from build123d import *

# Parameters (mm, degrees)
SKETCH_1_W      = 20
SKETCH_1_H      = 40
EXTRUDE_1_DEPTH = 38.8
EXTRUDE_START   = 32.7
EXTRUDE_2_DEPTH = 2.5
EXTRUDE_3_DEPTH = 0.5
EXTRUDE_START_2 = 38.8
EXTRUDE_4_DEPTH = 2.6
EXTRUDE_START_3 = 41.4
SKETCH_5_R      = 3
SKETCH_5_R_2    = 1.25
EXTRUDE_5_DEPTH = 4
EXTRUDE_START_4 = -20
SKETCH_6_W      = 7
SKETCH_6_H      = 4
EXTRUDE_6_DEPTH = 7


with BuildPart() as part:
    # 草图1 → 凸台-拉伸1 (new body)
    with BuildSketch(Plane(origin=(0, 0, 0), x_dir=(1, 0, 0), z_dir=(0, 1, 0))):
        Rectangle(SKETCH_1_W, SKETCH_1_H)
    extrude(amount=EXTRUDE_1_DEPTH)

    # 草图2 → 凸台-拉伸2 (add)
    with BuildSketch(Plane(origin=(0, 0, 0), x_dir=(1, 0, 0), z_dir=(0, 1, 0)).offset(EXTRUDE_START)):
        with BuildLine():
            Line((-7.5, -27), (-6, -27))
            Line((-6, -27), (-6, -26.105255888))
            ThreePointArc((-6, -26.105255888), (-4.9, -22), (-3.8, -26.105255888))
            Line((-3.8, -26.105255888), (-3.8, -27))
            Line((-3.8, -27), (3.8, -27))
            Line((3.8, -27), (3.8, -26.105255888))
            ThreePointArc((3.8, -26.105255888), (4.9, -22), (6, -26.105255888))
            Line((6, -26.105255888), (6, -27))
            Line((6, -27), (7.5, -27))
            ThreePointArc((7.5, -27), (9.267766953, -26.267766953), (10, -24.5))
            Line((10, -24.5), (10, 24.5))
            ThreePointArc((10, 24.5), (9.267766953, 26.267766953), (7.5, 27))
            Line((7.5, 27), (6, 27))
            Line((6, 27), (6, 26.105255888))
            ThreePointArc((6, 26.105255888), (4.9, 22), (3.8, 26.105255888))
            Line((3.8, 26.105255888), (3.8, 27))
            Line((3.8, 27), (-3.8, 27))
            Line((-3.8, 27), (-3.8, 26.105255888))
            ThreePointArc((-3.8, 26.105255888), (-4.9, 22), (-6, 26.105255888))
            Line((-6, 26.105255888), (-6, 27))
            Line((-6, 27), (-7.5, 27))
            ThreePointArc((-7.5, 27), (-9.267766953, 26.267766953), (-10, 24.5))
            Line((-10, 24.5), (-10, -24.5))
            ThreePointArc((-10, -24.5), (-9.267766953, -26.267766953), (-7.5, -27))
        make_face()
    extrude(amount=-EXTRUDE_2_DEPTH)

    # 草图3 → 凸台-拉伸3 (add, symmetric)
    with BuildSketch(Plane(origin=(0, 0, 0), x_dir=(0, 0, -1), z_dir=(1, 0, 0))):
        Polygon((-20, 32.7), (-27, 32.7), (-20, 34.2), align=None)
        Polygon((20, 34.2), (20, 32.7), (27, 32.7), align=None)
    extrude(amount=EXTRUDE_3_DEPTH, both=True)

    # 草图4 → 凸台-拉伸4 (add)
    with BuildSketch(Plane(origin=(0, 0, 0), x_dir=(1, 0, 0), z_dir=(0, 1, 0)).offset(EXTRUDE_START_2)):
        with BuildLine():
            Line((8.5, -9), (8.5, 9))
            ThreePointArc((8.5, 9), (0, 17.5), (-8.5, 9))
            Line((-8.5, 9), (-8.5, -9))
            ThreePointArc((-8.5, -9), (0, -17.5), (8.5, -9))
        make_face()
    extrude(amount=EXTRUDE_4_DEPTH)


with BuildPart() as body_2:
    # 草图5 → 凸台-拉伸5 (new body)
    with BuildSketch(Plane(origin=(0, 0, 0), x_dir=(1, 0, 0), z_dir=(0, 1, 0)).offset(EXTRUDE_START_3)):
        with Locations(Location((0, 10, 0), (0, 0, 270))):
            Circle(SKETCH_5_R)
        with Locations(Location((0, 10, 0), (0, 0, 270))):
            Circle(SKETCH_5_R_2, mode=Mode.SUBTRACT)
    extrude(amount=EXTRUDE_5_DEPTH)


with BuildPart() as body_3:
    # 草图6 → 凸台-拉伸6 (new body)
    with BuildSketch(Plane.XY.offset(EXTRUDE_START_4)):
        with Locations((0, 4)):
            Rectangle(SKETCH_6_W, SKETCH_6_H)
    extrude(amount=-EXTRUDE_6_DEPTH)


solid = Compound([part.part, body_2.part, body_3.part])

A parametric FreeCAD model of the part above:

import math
import FreeCAD as App
import Part
import Sketcher
Q = App.Units.Quantity

doc = App.newDocument("Part")
params = doc.addObject("Spreadsheet::Sheet", "Params")
for row, (alias, value) in enumerate([
    ("sketch1_width", "20 mm"),
    ("sketch1_height", "40 mm"),
    ("pad1_length", "38.8 mm"),
    ("sketch2_radius", "2.2 mm"),
    ("sketch2_radius2", "2.5 mm"),
    ("sketch2_height", "49 mm"),
    ("sketch2_width", "1.5 mm"),
    ("sketch2_width2", "7.6 mm"),
    ("pad2_length", "2.5 mm"),
    ("sketch3_height", "7 mm"),
    ("sketch3_width", "1.5 mm"),
    ("pad3_length", "1 mm"),
    ("sketch4_radius", "8.5 mm"),
    ("sketch4_height", "18 mm"),
    ("pad4_length", "2.6 mm"),
    ("sketch5_diameter", "6 mm"),
    ("sketch5_diameter2", "2.5 mm"),
    ("pad5_length", "4 mm"),
    ("sketch6_width", "7 mm"),
    ("sketch6_height", "4 mm"),
    ("pad6_length", "7 mm"),
], start=1):
    params.set(f"A{row}", alias)
    params.set(f"B{row}", "=" + value)
    params.setAlias(f"B{row}", alias)

body = doc.addObject("PartDesign::Body", "Body")

sketch1 = body.newObject("Sketcher::SketchObject", "Sketch")
sketch1.AttachmentSupport = (doc.getObject("XZ_Plane"), [""])
sketch1.MapMode = "FlatFace"
sketch1.addGeometry(Part.LineSegment(App.Vector(-10, -20, 0), App.Vector(-10, 20, 0)), False)
sketch1.addGeometry(Part.LineSegment(App.Vector(-10, 20, 0), App.Vector(10, 20, 0)), False)
sketch1.addGeometry(Part.LineSegment(App.Vector(10, 20, 0), App.Vector(10, -20, 0)), False)
sketch1.addGeometry(Part.LineSegment(App.Vector(10, -20, 0), App.Vector(-10, -20, 0)), False)
sketch1.addConstraint(Sketcher.Constraint("Coincident", 0, 2, 1, 1))
sketch1.addConstraint(Sketcher.Constraint("Coincident", 1, 2, 2, 1))
sketch1.addConstraint(Sketcher.Constraint("Coincident", 2, 2, 3, 1))
sketch1.addConstraint(Sketcher.Constraint("Coincident", 3, 2, 0, 1))
sketch1.addConstraint(Sketcher.Constraint("Vertical", 0))
sketch1.addConstraint(Sketcher.Constraint("Horizontal", 1))
sketch1.addConstraint(Sketcher.Constraint("Vertical", 2))
sketch1.addConstraint(Sketcher.Constraint("Horizontal", 3))
sketch1.addConstraint(Sketcher.Constraint("Symmetric", 0, 2, 2, 2, -1, 1))
sketch1.addConstraint(Sketcher.Constraint("DistanceX", 1, 1, 1, 2, Q("20 mm")))
sketch1.addConstraint(Sketcher.Constraint("DistanceY", 0, 1, 0, 2, Q("40 mm")))
sketch1.setExpression("Constraints[9]", "Params.sketch1_width")
sketch1.setExpression("Constraints[10]", "Params.sketch1_height")
pad1 = body.newObject("PartDesign::Pad", "Pad")
pad1.Profile = sketch1
pad1.setExpression("Length", "Params.pad1_length")
pad1.Reversed = True

sketch2 = body.newObject("Sketcher::SketchObject", "Sketch001")
sketch2.AttachmentSupport = (doc.getObject("XZ_Plane"), [""])
sketch2.MapMode = "FlatFace"
sketch2.AttachmentOffset = App.Placement(App.Vector(0, 0, -32.7), App.Rotation())
sketch2.addGeometry(Part.LineSegment(App.Vector(-7.5, 27, 0), App.Vector(-6, 27, 0)), False)
sketch2.addGeometry(Part.LineSegment(App.Vector(-6, 27, 0), App.Vector(-6, 26.1, 0)), False)
sketch2.addGeometry(Part.ArcOfCircle(Part.Circle(App.Vector(-4.9, 24.2, 0), App.Vector(0, 0, 1), 2.2), math.radians(120), math.radians(420)), False)
sketch2.addGeometry(Part.LineSegment(App.Vector(-3.8, 26.1, 0), App.Vector(-3.8, 27, 0)), False)
sketch2.addGeometry(Part.LineSegment(App.Vector(-3.8, 27, 0), App.Vector(3.8, 27, 0)), False)
sketch2.addGeometry(Part.LineSegment(App.Vector(3.8, 27, 0), App.Vector(3.8, 26.1, 0)), False)
sketch2.addGeometry(Part.ArcOfCircle(Part.Circle(App.Vector(4.9, 24.2, 0), App.Vector(0, 0, 1), 2.2), math.radians(120), math.radians(420)), False)
sketch2.addGeometry(Part.LineSegment(App.Vector(6, 26.1, 0), App.Vector(6, 27, 0)), False)
sketch2.addGeometry(Part.LineSegment(App.Vector(6, 27, 0), App.Vector(7.5, 27, 0)), False)
sketch2.addGeometry(Part.ArcOfCircle(Part.Circle(App.Vector(7.5, 24.5, 0), App.Vector(0, 0, 1), 2.5), math.radians(0), math.radians(90)), False)
sketch2.addGeometry(Part.LineSegment(App.Vector(10, 24.5, 0), App.Vector(10, -24.5, 0)), False)
sketch2.addGeometry(Part.ArcOfCircle(Part.Circle(App.Vector(7.5, -24.5, 0), App.Vector(0, 0, 1), 2.5), math.radians(-90), math.radians(0)), False)
sketch2.addGeometry(Part.LineSegment(App.Vector(7.5, -27, 0), App.Vector(6, -27, 0)), False)
sketch2.addGeometry(Part.LineSegment(App.Vector(6, -27, 0), App.Vector(6, -26.1, 0)), False)
sketch2.addGeometry(Part.ArcOfCircle(Part.Circle(App.Vector(4.9, -24.2, 0), App.Vector(0, 0, 1), 2.2), math.radians(-60), math.radians(240)), False)
sketch2.addGeometry(Part.LineSegment(App.Vector(3.8, -26.1, 0), App.Vector(3.8, -27, 0)), False)
sketch2.addGeometry(Part.LineSegment(App.Vector(3.8, -27, 0), App.Vector(-3.8, -27, 0)), False)
sketch2.addGeometry(Part.LineSegment(App.Vector(-3.8, -27, 0), App.Vector(-3.8, -26.1, 0)), False)
sketch2.addGeometry(Part.ArcOfCircle(Part.Circle(App.Vector(-4.9, -24.2, 0), App.Vector(0, 0, 1), 2.2), math.radians(-60), math.radians(240)), False)
sketch2.addGeometry(Part.LineSegment(App.Vector(-6, -26.1, 0), App.Vector(-6, -27, 0)), False)
sketch2.addGeometry(Part.LineSegment(App.Vector(-6, -27, 0), App.Vector(-7.5, -27, 0)), False)
sketch2.addGeometry(Part.ArcOfCircle(Part.Circle(App.Vector(-7.5, -24.5, 0), App.Vector(0, 0, 1), 2.5), math.radians(180), math.radians(270)), False)
sketch2.addGeometry(Part.LineSegment(App.Vector(-10, -24.5, 0), App.Vector(-10, 24.5, 0)), False)
sketch2.addGeometry(Part.ArcOfCircle(Part.Circle(App.Vector(-7.5, 24.5, 0), App.Vector(0, 0, 1), 2.5), math.radians(90), math.radians(180)), False)
sketch2.addConstraint(Sketcher.Constraint("Coincident", 0, 2, 1, 1))
sketch2.addConstraint(Sketcher.Constraint("Coincident", 1, 2, 2, 1))
sketch2.addConstraint(Sketcher.Constraint("Coincident", 2, 2, 3, 1))
sketch2.addConstraint(Sketcher.Constraint("Coincident", 3, 2, 4, 1))
sketch2.addConstraint(Sketcher.Constraint("Coincident", 4, 2, 5, 1))
sketch2.addConstraint(Sketcher.Constraint("Coincident", 5, 2, 6, 1))
sketch2.addConstraint(Sketcher.Constraint("Coincident", 6, 2, 7, 1))
sketch2.addConstraint(Sketcher.Constraint("Coincident", 7, 2, 8, 1))
sketch2.addConstraint(Sketcher.Constraint("Tangent", 8, 2, 9, 2))
sketch2.addConstraint(Sketcher.Constraint("Tangent", 9, 1, 10, 1))
sketch2.addConstraint(Sketcher.Constraint("Tangent", 10, 2, 11, 2))
sketch2.addConstraint(Sketcher.Constraint("Tangent", 11, 1, 12, 1))
sketch2.addConstraint(Sketcher.Constraint("Coincident", 12, 2, 13, 1))
sketch2.addConstraint(Sketcher.Constraint("Coincident", 13, 2, 14, 1))
sketch2.addConstraint(Sketcher.Constraint("Coincident", 14, 2, 15, 1))
sketch2.addConstraint(Sketcher.Constraint("Coincident", 15, 2, 16, 1))
sketch2.addConstraint(Sketcher.Constraint("Coincident", 16, 2, 17, 1))
sketch2.addConstraint(Sketcher.Constraint("Coincident", 17, 2, 18, 1))
sketch2.addConstraint(Sketcher.Constraint("Coincident", 18, 2, 19, 1))
sketch2.addConstraint(Sketcher.Constraint("Coincident", 19, 2, 20, 1))
sketch2.addConstraint(Sketcher.Constraint("Tangent", 20, 2, 21, 2))
sketch2.addConstraint(Sketcher.Constraint("Tangent", 21, 1, 22, 1))
sketch2.addConstraint(Sketcher.Constraint("Tangent", 22, 2, 23, 2))
sketch2.addConstraint(Sketcher.Constraint("Tangent", 23, 1, 0, 1))
sketch2.addConstraint(Sketcher.Constraint("Horizontal", 0))
sketch2.addConstraint(Sketcher.Constraint("Vertical", 1))
sketch2.addConstraint(Sketcher.Constraint("Vertical", 3))
sketch2.addConstraint(Sketcher.Constraint("Horizontal", 4))
sketch2.addConstraint(Sketcher.Constraint("Vertical", 5))
sketch2.addConstraint(Sketcher.Constraint("Vertical", 7))
sketch2.addConstraint(Sketcher.Constraint("Horizontal", 8))
sketch2.addConstraint(Sketcher.Constraint("Vertical", 10))
sketch2.addConstraint(Sketcher.Constraint("Horizontal", 12))
sketch2.addConstraint(Sketcher.Constraint("Vertical", 13))
sketch2.addConstraint(Sketcher.Constraint("Vertical", 15))
sketch2.addConstraint(Sketcher.Constraint("Horizontal", 16))
sketch2.addConstraint(Sketcher.Constraint("Vertical", 17))
sketch2.addConstraint(Sketcher.Constraint("Vertical", 19))
sketch2.addConstraint(Sketcher.Constraint("Horizontal", 20))
sketch2.addConstraint(Sketcher.Constraint("Vertical", 22))
sketch2.addConstraint(Sketcher.Constraint("Equal", 2, 6))
sketch2.addConstraint(Sketcher.Constraint("Equal", 9, 11))
sketch2.addConstraint(Sketcher.Constraint("Equal", 6, 14))
sketch2.addConstraint(Sketcher.Constraint("Equal", 14, 18))
sketch2.addConstraint(Sketcher.Constraint("Equal", 11, 21))
sketch2.addConstraint(Sketcher.Constraint("Equal", 21, 23))
sketch2.addConstraint(Sketcher.Constraint("Symmetric", 2, 3, 14, 3, -1, 1))
sketch2.addConstraint(Sketcher.Constraint("Symmetric", 6, 3, 18, 3, -1, 1))
sketch2.addConstraint(Sketcher.Constraint("Symmetric", 9, 3, 21, 3, -1, 1))
sketch2.addConstraint(Sketcher.Constraint("Symmetric", 0, 2, 12, 2, -1, 1))
sketch2.addConstraint(Sketcher.Constraint("Symmetric", 3, 2, 15, 2, -1, 1))
sketch2.addConstraint(Sketcher.Constraint("Symmetric", 2, 3, 6, 3, -2))
sketch2.addConstraint(Sketcher.Constraint("Symmetric", 0, 2, 7, 2, -2))
sketch2.addConstraint(Sketcher.Constraint("Horizontal", 1, 2, 2, 2))
sketch2.addConstraint(Sketcher.Constraint("Horizontal", 0, 2, 3, 2))
sketch2.addConstraint(Sketcher.Constraint("Horizontal", 2, 2, 5, 2))
sketch2.addConstraint(Sketcher.Constraint("Horizontal", 14, 2, 17, 2))
sketch2.addConstraint(Sketcher.Constraint("Horizontal", 17, 2, 18, 2))
sketch2.addConstraint(Sketcher.Constraint("Radius", 2, Q("2.2 mm")))
sketch2.addConstraint(Sketcher.Constraint("Radius", 9, Q("2.5 mm")))
sketch2.addConstraint(Sketcher.Constraint("DistanceY", 10, 2, 10, 1, Q("49 mm")))
sketch2.addConstraint(Sketcher.Constraint("DistanceX", 0, 1, 0, 2, Q("1.5 mm")))
sketch2.addConstraint(Sketcher.Constraint("DistanceX", 4, 1, 4, 2, Q("7.6 mm")))
sketch2.addConstraint(Sketcher.Constraint("DistanceX", 0, 2, -1, 1, Q("6 mm")))
sketch2.addConstraint(Sketcher.Constraint("DistanceY", -1, 1, 2, 3, Q("24.2 mm")))
sketch2.setExpression("Constraints[58]", "Params.sketch2_radius")
sketch2.setExpression("Constraints[59]", "Params.sketch2_radius2")
sketch2.setExpression("Constraints[60]", "Params.sketch2_height")
sketch2.setExpression("Constraints[61]", "Params.sketch2_width")
sketch2.setExpression("Constraints[62]", "Params.sketch2_width2")
pad2 = body.newObject("PartDesign::Pad", "Pad001")
pad2.Profile = sketch2
pad2.setExpression("Length", "Params.pad2_length")

sketch3 = body.newObject("Sketcher::SketchObject", "Sketch002")
sketch3.AttachmentSupport = (doc.getObject("YZ_Plane"), [""])
sketch3.MapMode = "FlatFace"
sketch3.addGeometry(Part.LineSegment(App.Vector(32.7, 27, 0), App.Vector(32.7, 20, 0)), False)
sketch3.addGeometry(Part.LineSegment(App.Vector(32.7, 20, 0), App.Vector(34.2, 20, 0)), False)
sketch3.addGeometry(Part.LineSegment(App.Vector(34.2, 20, 0), App.Vector(32.7, 27, 0)), False)
sketch3.addGeometry(Part.LineSegment(App.Vector(34.2, -20, 0), App.Vector(32.7, -20, 0)), False)
sketch3.addGeometry(Part.LineSegment(App.Vector(32.7, -20, 0), App.Vector(32.7, -27, 0)), False)
sketch3.addGeometry(Part.LineSegment(App.Vector(32.7, -27, 0), App.Vector(34.2, -20, 0)), False)
sketch3.addConstraint(Sketcher.Constraint("Coincident", 0, 2, 1, 1))
sketch3.addConstraint(Sketcher.Constraint("Coincident", 1, 2, 2, 1))
sketch3.addConstraint(Sketcher.Constraint("Coincident", 2, 2, 0, 1))
sketch3.addConstraint(Sketcher.Constraint("Coincident", 3, 2, 4, 1))
sketch3.addConstraint(Sketcher.Constraint("Coincident", 4, 2, 5, 1))
sketch3.addConstraint(Sketcher.Constraint("Coincident", 5, 2, 3, 1))
sketch3.addConstraint(Sketcher.Constraint("Vertical", 0))
sketch3.addConstraint(Sketcher.Constraint("Horizontal", 1))
sketch3.addConstraint(Sketcher.Constraint("Horizontal", 3))
sketch3.addConstraint(Sketcher.Constraint("Vertical", 4))
sketch3.addConstraint(Sketcher.Constraint("Symmetric", 0, 2, 3, 2, -1))
sketch3.addConstraint(Sketcher.Constraint("Vertical", 1, 2, 5, 2))
sketch3.addConstraint(Sketcher.Constraint("Equal", 0, 4))
sketch3.addConstraint(Sketcher.Constraint("DistanceY", 0, 2, 0, 1, Q("7 mm")))
sketch3.addConstraint(Sketcher.Constraint("DistanceX", 1, 1, 1, 2, Q("1.5 mm")))
sketch3.addConstraint(Sketcher.Constraint("DistanceY", -1, 1, 0, 2, Q("20 mm")))
sketch3.addConstraint(Sketcher.Constraint("DistanceX", -1, 1, 0, 2, Q("32.7 mm")))
sketch3.setExpression("Constraints[13]", "Params.sketch3_height")
sketch3.setExpression("Constraints[14]", "Params.sketch3_width")
pad3 = body.newObject("PartDesign::Pad", "Pad002")
pad3.Profile = sketch3
pad3.setExpression("Length", "Params.pad3_length")
pad3.Midplane = True

sketch4 = body.newObject("Sketcher::SketchObject", "Sketch003")
sketch4.AttachmentSupport = (doc.getObject("XZ_Plane"), [""])
sketch4.MapMode = "FlatFace"
sketch4.AttachmentOffset = App.Placement(App.Vector(0, 0, -38.8), App.Rotation())
sketch4.addGeometry(Part.LineSegment(App.Vector(8, 9, 0), App.Vector(8, -9, 0)), False)
sketch4.addGeometry(Part.ArcOfCircle(Part.Circle(App.Vector(0, -9, 0), App.Vector(0, 0, 1), 8), math.radians(180), math.radians(360)), False)
sketch4.addGeometry(Part.LineSegment(App.Vector(-8, -9, 0), App.Vector(-8, 9, 0)), False)
sketch4.addGeometry(Part.ArcOfCircle(Part.Circle(App.Vector(0, 9, 0), App.Vector(0, 0, 1), 8), math.radians(0), math.radians(180)), False)
sketch4.addConstraint(Sketcher.Constraint("Tangent", 0, 2, 1, 2))
sketch4.addConstraint(Sketcher.Constraint("Tangent", 1, 1, 2, 1))
sketch4.addConstraint(Sketcher.Constraint("Tangent", 2, 2, 3, 2))
sketch4.addConstraint(Sketcher.Constraint("Tangent", 3, 1, 0, 1))
sketch4.addConstraint(Sketcher.Constraint("Vertical", 0))
sketch4.addConstraint(Sketcher.Constraint("Vertical", 2))
sketch4.addConstraint(Sketcher.Constraint("Symmetric", 1, 3, 3, 3, -1, 1))
sketch4.addConstraint(Sketcher.Constraint("Radius", 1, Q("8.5 mm")))
sketch4.addConstraint(Sketcher.Constraint("DistanceY", 0, 2, 0, 1, Q("18 mm")))
sketch4.setExpression("Constraints[7]", "Params.sketch4_radius")
sketch4.setExpression("Constraints[8]", "Params.sketch4_height")
pad4 = body.newObject("PartDesign::Pad", "Pad003")
pad4.Profile = sketch4
pad4.setExpression("Length", "Params.pad4_length")
pad4.Reversed = True
body2 = doc.addObject("PartDesign::Body", "Body001")

sketch5 = body2.newObject("Sketcher::SketchObject", "Sketch004")
sketch5.AttachmentSupport = (doc.getObject("XZ_Plane001"), [""])
sketch5.MapMode = "FlatFace"
sketch5.AttachmentOffset = App.Placement(App.Vector(0, 0, -41.4), App.Rotation())
sketch5.addGeometry(Part.Circle(App.Vector(0, -10, 0), App.Vector(0, 0, 1), 3), False)
sketch5.addGeometry(Part.Circle(App.Vector(0, -10, 0), App.Vector(0, 0, 1), 1.2), False)
sketch5.addConstraint(Sketcher.Constraint("Coincident", 1, 3, 0, 3))
sketch5.addConstraint(Sketcher.Constraint("PointOnObject", 0, 3, -2))
sketch5.addConstraint(Sketcher.Constraint("Diameter", 0, Q("6 mm")))
sketch5.addConstraint(Sketcher.Constraint("Diameter", 1, Q("2.5 mm")))
sketch5.addConstraint(Sketcher.Constraint("DistanceY", 0, 3, -1, 1, Q("10 mm")))
sketch5.setExpression("Constraints[2]", "Params.sketch5_diameter")
sketch5.setExpression("Constraints[3]", "Params.sketch5_diameter2")
pad5 = body2.newObject("PartDesign::Pad", "Pad004")
pad5.Profile = sketch5
pad5.setExpression("Length", "Params.pad5_length")
pad5.Reversed = True
body3 = doc.addObject("PartDesign::Body", "Body002")

sketch6 = body3.newObject("Sketcher::SketchObject", "Sketch005")
sketch6.AttachmentSupport = (doc.getObject("XY_Plane002"), [""])
sketch6.MapMode = "FlatFace"
sketch6.AttachmentOffset = App.Placement(App.Vector(0, 0, -20), App.Rotation())
sketch6.addGeometry(Part.LineSegment(App.Vector(-3.5, 6, 0), App.Vector(-3.5, 2, 0)), False)
sketch6.addGeometry(Part.LineSegment(App.Vector(-3.5, 2, 0), App.Vector(3.5, 2, 0)), False)
sketch6.addGeometry(Part.LineSegment(App.Vector(3.5, 2, 0), App.Vector(3.5, 6, 0)), False)
sketch6.addGeometry(Part.LineSegment(App.Vector(3.5, 6, 0), App.Vector(-3.5, 6, 0)), False)
sketch6.addConstraint(Sketcher.Constraint("Coincident", 0, 2, 1, 1))
sketch6.addConstraint(Sketcher.Constraint("Coincident", 1, 2, 2, 1))
sketch6.addConstraint(Sketcher.Constraint("Coincident", 2, 2, 3, 1))
sketch6.addConstraint(Sketcher.Constraint("Coincident", 3, 2, 0, 1))
sketch6.addConstraint(Sketcher.Constraint("Vertical", 0))
sketch6.addConstraint(Sketcher.Constraint("Horizontal", 1))
sketch6.addConstraint(Sketcher.Constraint("Vertical", 2))
sketch6.addConstraint(Sketcher.Constraint("Horizontal", 3))
sketch6.addConstraint(Sketcher.Constraint("DistanceX", 1, 1, 1, 2, Q("7 mm")))
sketch6.addConstraint(Sketcher.Constraint("DistanceY", 0, 2, 0, 1, Q("4 mm")))
sketch6.addConstraint(Sketcher.Constraint("DistanceY", -1, 1, 0, 2, Q("2 mm")))
sketch6.addConstraint(Sketcher.Constraint("DistanceX", 0, 2, -1, 1, Q("3.5 mm")))
sketch6.setExpression("Constraints[8]", "Params.sketch6_width")
sketch6.setExpression("Constraints[9]", "Params.sketch6_height")
pad6 = body3.newObject("PartDesign::Pad", "Pad005")
pad6.Profile = sketch6
pad6.setExpression("Length", "Params.pad6_length")
pad6.Reversed = True

doc.recompute()
